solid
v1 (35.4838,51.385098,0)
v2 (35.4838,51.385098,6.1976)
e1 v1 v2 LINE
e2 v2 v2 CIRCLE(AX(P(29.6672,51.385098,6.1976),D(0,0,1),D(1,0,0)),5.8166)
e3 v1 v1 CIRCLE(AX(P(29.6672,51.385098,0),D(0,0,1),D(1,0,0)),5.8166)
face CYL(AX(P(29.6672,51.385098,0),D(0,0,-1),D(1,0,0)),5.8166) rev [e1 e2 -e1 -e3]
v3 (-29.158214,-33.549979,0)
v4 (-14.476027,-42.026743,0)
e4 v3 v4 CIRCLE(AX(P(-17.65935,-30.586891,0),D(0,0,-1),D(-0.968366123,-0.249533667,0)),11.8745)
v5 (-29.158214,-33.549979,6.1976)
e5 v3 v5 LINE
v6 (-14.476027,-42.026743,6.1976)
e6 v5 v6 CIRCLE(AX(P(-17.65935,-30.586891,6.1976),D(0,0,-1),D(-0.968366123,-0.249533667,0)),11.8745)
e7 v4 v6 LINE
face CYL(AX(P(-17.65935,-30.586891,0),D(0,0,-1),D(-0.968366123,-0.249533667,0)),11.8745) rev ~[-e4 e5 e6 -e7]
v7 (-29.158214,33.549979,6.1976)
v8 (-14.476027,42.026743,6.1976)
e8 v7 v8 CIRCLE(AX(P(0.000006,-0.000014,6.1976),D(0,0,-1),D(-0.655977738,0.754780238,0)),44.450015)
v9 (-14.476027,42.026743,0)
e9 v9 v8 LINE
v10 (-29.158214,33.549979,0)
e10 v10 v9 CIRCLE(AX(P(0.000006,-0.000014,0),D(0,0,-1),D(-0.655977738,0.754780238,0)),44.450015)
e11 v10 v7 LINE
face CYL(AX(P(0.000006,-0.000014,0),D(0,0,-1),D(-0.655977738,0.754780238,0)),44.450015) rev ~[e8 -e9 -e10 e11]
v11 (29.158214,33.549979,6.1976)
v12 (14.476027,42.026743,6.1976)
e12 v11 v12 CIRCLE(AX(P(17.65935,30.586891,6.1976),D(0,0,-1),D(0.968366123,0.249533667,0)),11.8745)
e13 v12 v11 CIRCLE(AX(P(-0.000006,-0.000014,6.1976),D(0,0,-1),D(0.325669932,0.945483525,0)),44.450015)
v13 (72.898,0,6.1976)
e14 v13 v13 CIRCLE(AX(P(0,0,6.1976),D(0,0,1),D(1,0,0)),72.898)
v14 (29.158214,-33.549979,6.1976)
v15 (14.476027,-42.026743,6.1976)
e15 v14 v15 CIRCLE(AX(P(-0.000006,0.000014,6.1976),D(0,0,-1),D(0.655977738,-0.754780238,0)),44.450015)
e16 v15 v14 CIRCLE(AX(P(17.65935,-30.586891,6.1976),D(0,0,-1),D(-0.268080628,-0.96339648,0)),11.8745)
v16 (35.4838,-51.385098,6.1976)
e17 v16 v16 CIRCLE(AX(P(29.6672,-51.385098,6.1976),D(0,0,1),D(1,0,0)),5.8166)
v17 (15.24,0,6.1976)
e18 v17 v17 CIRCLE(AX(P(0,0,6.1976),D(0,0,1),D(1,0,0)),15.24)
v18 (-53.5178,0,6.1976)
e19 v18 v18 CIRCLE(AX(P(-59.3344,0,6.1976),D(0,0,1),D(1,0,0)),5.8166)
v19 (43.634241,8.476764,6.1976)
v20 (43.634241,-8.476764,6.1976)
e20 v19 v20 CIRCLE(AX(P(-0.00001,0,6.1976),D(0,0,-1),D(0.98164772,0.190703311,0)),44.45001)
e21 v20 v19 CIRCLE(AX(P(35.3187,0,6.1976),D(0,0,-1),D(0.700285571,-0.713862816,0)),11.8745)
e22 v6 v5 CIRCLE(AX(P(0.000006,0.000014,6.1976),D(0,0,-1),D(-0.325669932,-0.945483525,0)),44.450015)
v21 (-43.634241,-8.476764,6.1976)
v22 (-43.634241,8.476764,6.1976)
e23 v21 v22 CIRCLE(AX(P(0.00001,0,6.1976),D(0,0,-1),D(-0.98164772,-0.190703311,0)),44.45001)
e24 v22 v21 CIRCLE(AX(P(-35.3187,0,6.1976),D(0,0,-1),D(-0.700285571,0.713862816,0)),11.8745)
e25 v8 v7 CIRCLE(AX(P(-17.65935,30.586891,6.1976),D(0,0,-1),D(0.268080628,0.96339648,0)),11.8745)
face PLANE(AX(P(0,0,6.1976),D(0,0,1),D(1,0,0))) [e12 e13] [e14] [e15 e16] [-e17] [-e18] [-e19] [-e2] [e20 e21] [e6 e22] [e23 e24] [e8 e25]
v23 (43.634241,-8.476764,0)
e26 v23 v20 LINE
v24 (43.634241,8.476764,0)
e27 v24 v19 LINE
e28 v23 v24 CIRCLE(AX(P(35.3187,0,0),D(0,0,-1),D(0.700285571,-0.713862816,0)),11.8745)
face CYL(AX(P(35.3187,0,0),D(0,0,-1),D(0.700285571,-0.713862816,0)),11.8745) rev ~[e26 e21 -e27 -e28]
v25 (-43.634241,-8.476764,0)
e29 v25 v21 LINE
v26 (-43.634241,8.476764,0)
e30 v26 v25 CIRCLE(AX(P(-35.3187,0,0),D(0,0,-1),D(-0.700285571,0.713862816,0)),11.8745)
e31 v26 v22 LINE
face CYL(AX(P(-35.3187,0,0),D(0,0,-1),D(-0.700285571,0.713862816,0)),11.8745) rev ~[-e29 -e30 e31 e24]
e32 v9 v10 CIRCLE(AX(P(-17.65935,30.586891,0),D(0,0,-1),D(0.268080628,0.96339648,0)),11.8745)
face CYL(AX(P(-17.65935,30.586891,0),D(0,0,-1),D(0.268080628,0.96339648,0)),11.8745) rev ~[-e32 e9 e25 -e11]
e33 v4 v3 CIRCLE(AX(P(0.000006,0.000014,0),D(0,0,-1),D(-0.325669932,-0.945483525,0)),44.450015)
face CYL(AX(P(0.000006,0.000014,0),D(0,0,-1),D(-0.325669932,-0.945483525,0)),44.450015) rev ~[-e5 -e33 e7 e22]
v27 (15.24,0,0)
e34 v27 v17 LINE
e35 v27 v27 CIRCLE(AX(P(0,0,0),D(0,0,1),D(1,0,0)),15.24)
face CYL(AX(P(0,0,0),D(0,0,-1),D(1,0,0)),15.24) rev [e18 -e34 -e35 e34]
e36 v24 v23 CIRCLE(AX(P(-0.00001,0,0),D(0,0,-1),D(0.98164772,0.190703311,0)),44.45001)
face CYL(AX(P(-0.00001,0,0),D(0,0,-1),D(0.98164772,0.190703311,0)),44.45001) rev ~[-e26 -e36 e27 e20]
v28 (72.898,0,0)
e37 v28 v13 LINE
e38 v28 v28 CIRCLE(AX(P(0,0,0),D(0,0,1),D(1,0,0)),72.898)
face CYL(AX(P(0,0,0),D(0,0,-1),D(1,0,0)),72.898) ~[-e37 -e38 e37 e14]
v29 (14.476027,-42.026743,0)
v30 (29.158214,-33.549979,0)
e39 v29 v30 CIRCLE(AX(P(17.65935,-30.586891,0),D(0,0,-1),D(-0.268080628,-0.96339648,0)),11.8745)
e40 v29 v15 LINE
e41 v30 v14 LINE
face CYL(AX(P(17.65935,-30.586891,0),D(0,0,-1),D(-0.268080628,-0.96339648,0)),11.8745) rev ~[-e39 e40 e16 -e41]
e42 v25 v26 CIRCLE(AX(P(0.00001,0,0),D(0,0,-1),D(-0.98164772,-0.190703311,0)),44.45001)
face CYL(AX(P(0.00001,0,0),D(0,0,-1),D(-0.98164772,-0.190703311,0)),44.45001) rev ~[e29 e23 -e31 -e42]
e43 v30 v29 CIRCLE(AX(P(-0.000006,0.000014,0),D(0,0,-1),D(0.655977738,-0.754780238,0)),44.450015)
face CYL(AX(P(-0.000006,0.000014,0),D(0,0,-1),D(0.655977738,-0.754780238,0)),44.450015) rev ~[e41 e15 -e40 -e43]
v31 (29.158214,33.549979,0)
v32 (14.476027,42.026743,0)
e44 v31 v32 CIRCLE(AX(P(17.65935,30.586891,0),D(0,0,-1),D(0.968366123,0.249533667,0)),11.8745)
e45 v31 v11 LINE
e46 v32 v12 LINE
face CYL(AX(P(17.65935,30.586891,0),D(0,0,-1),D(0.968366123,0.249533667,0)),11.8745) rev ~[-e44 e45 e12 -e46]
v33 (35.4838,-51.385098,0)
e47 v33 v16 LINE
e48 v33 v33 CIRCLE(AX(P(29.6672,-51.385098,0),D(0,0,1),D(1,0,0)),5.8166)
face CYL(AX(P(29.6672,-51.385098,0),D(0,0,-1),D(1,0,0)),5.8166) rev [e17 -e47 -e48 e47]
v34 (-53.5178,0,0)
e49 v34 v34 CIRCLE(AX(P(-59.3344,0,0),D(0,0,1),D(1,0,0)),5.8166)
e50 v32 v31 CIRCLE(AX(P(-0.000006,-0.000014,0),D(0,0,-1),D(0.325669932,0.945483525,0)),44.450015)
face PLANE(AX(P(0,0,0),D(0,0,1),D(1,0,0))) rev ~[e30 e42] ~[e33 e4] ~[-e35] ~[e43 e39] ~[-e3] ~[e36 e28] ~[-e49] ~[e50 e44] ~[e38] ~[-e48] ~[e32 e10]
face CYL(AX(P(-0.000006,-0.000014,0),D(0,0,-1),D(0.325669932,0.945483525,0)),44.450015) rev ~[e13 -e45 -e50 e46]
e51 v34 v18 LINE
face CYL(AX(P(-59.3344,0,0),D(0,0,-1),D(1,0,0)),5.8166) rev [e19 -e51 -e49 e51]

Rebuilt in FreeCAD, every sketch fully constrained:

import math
import FreeCAD as App
import Part
import Sketcher
from FreeCAD import Vector
Q = App.Units.Quantity

doc = App.newDocument("Part")
body = doc.addObject("PartDesign::Body", "Body")

# Sketch on XY plane
sketch1 = body.newObject("Sketcher::SketchObject", "Sketch")
sketch1.AttachmentSupport = (doc.getObject("XY_Plane"), [""])
sketch1.MapMode = "FlatFace"
sketch1.addGeometry([
    Part.Circle(Vector(0, 0, 0), Vector(0, 0, 1), 72.898),  # 0
    Part.ArcOfCircle(Part.Circle(Vector(0.000006, 0.000014, 0), Vector(0, 0, 1), 44.450015), math.radians(-130.993829), math.radians(-109.006168)),  # 1
    Part.ArcOfCircle(Part.Circle(Vector(-17.65935, -30.586891, 0), Vector(0, 0, 1), 11.8745), math.radians(-74.449915), math.radians(194.449919)),  # 2
    Part.Circle(Vector(29.6672, -51.385098, 0), Vector(0, 0, 1), 5.8166),  # 3
    Part.ArcOfCircle(Part.Circle(Vector(-0.000006, 0.000014, 0), Vector(0, 0, 1), 44.450015), math.radians(-70.993832), math.radians(-49.006171)),  # 4
    Part.ArcOfCircle(Part.Circle(Vector(17.65935, -30.586891, 0), Vector(0, 0, 1), 11.8745), math.radians(-14.449919), math.radians(254.449915)),  # 5
    Part.Circle(Vector(-59.3344, 0, 0), Vector(0, 0, 1), 5.8166),  # 6
    Part.ArcOfCircle(Part.Circle(Vector(0.00001, 0, 0), Vector(0, 0, 1), 44.45001), math.radians(169.006169), math.radians(190.993831)),  # 7
    Part.ArcOfCircle(Part.Circle(Vector(-35.3187, 0, 0), Vector(0, 0, 1), 11.8745), math.radians(-134.44992), math.radians(134.44992)),  # 8
    Part.ArcOfCircle(Part.Circle(Vector(-17.65935, 30.586891, 0), Vector(0, 0, 1), 11.8745), math.radians(165.550081), math.radians(434.449915)),  # 9
    Part.ArcOfCircle(Part.Circle(Vector(0.000006, -0.000014, 0), Vector(0, 0, 1), 44.450015), math.radians(109.006168), math.radians(130.993829)),  # 10
    Part.Circle(Vector(0, 0, 0), Vector(0, 0, 1), 15.24),  # 11
    Part.ArcOfCircle(Part.Circle(Vector(-0.00001, 0, 0), Vector(0, 0, 1), 44.45001), math.radians(-10.993831), math.radians(10.993831)),  # 12
    Part.ArcOfCircle(Part.Circle(Vector(35.3187, 0, 0), Vector(0, 0, 1), 11.8745), math.radians(45.55008), math.radians(314.44992)),  # 13
    Part.ArcOfCircle(Part.Circle(Vector(-0.000006, -0.000014, 0), Vector(0, 0, 1), 44.450015), math.radians(49.006171), math.radians(70.993832)),  # 14
    Part.ArcOfCircle(Part.Circle(Vector(17.65935, 30.586891, 0), Vector(0, 0, 1), 11.8745), math.radians(105.550085), math.radians(374.449919)),  # 15
    Part.Circle(Vector(29.6672, 51.385098, 0), Vector(0, 0, 1), 5.8166),  # 16
], False)
sketch1.addConstraint([
    Sketcher.Constraint("Coincident", 1, 1, 2, 2),
    Sketcher.Constraint("Coincident", 2, 1, 1, 2),
    Sketcher.Constraint("Coincident", 4, 1, 5, 2),
    Sketcher.Constraint("Coincident", 5, 1, 4, 2),
    Sketcher.Constraint("Coincident", 7, 1, 8, 2),
    Sketcher.Constraint("Coincident", 8, 1, 7, 2),
    Sketcher.Constraint("Coincident", 9, 1, 10, 2),
    Sketcher.Constraint("Coincident", 10, 1, 9, 2),
    Sketcher.Constraint("Coincident", 12, 1, 13, 2),
    Sketcher.Constraint("Coincident", 13, 1, 12, 2),
    Sketcher.Constraint("Coincident", 14, 1, 15, 2),
    Sketcher.Constraint("Coincident", 15, 1, 14, 2),
    Sketcher.Constraint("Coincident", 0, 3, -1, 1),
    Sketcher.Constraint("Coincident", 7, 3, -1, 1),
    Sketcher.Constraint("Coincident", 11, 3, -1, 1),
    Sketcher.Constraint("Coincident", 12, 3, -1, 1),
    Sketcher.Constraint("Equal", 1, 4),
    Sketcher.Constraint("Equal", 2, 5),
    Sketcher.Constraint("Equal", 3, 6),
    Sketcher.Constraint("Equal", 5, 8),
    Sketcher.Constraint("Equal", 8, 9),
    Sketcher.Constraint("Equal", 4, 10),
    Sketcher.Constraint("Equal", 7, 12),
    Sketcher.Constraint("Equal", 9, 13),
    Sketcher.Constraint("Equal", 10, 14),
    Sketcher.Constraint("Equal", 13, 15),
    Sketcher.Constraint("Equal", 6, 16),
    Sketcher.Constraint("Symmetric", 5, 3, 9, 3, -1, 1),
    Sketcher.Constraint("Symmetric", 4, 3, 10, 3, -1, 1),
    Sketcher.Constraint("Symmetric", 8, 3, 13, 3, -1, 1),
    Sketcher.Constraint("Symmetric", 1, 3, 14, 3, -1, 1),
    Sketcher.Constraint("Symmetric", 2, 3, 15, 3, -1, 1),
    Sketcher.Constraint("Symmetric", 1, 3, 4, 3, -2),
    Sketcher.Constraint("Symmetric", 2, 3, 5, 3, -2),
    Sketcher.Constraint("Symmetric", 3, 3, 16, 3, -1),
    Sketcher.Constraint("PointOnObject", 6, 3, -1),
    Sketcher.Constraint("PointOnObject", 8, 3, -1),
    Sketcher.Constraint("Diameter", 11, Q("1.2 in")),
    Sketcher.Constraint("Diameter", 0, Q("5.74 in")),
    Sketcher.Constraint("Diameter", 3, Q("0.458 in")),
    Sketcher.Constraint("Radius", 2, Q("0.4675 in")),
    Sketcher.Constraint("DistanceX", -1, 1, 3, 3, Q("1.168 in")),
    Sketcher.Constraint("DistanceX", 6, 3, -1, 1, Q("2.336 in")),
    Sketcher.Constraint("Radius", 7, Q("44.45001 mm")),
    Sketcher.Constraint("DistanceX", 6, 3, 5, 3, Q("3.03125 in")),
    Sketcher.Constraint("DistanceX", 8, 3, -1, 1, Q("1.3905 in")),
    Sketcher.Constraint("Radius", 1, Q("44.450015 mm")),
    Sketcher.Constraint("DistanceY", 2, 3, -1, 1, Q("30.586891 mm")),
    Sketcher.Constraint("DistanceY", 1, 1, -1, 1, Q("33.549979 mm")),
    Sketcher.Constraint("DistanceY", 3, 3, 1, 3, Q("51.385112 mm")),
    Sketcher.Constraint("DistanceX", 1, 1, 10, 3, Q("29.15822 mm")),
])
pad1 = body.newObject("PartDesign::Pad", "Pad")
pad1.Profile = sketch1
pad1.Length = Q("0.244 in")

doc.recompute()
